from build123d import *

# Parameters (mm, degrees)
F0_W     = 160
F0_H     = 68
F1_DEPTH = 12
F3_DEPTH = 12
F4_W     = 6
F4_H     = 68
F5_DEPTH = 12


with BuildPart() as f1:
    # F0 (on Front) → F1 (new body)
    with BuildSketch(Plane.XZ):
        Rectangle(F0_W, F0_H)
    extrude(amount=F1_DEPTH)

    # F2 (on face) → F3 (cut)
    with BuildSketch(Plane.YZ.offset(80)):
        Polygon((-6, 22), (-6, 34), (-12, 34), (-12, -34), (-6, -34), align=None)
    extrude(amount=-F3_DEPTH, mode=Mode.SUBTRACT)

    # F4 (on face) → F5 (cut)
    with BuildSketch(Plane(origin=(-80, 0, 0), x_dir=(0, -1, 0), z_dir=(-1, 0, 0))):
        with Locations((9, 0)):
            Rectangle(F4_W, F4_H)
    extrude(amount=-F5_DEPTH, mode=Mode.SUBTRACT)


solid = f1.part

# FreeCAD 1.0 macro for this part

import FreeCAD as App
import Part
import Sketcher
from FreeCAD import Vector

doc = App.newDocument("Part")
body = doc.addObject("PartDesign::Body", "Body")

# Sketch on XZ plane
sketch1 = body.newObject("Sketcher::SketchObject", "Sketch")
sketch1.AttachmentSupport = (doc.getObject("XZ_Plane"), [""])
sketch1.MapMode = "FlatFace"
sketch1.addGeometry([
    Part.LineSegment(Vector(-80, 34, 0), Vector(-80, -34, 0)),
    Part.LineSegment(Vector(-80, -34, 0), Vector(80, -34, 0)),
    Part.LineSegment(Vector(80, -34, 0), Vector(80, 34, 0)),
    Part.LineSegment(Vector(80, 34, 0), Vector(-80, 34, 0)),
], False)
sketch1.addConstraint([
    Sketcher.Constraint("Coincident", 0, 2, 1, 1),
    Sketcher.Constraint("Coincident", 1, 2, 2, 1),
    Sketcher.Constraint("Coincident", 2, 2, 3, 1),
    Sketcher.Constraint("Coincident", 3, 2, 0, 1),
    Sketcher.Constraint("Vertical", 0),
    Sketcher.Constraint("Horizontal", 1),
    Sketcher.Constraint("Vertical", 2),
    Sketcher.Constraint("Horizontal", 3),
    Sketcher.Constraint("Symmetric", 0, 2, 2, 2, -1, 1),
    Sketcher.Constraint("DistanceX", 1, 1, 1, 2, 160.0),
    Sketcher.Constraint("DistanceY", 0, 2, 0, 1, 68.0),
])
pad1 = body.newObject("PartDesign::Pad", "Pad")
pad1.Profile = sketch1
pad1.Length = 12

# Sketch on YZ plane
sketch2 = body.newObject("Sketcher::SketchObject", "Sketch001")
sketch2.AttachmentSupport = (doc.getObject("YZ_Plane"), [""])
sketch2.MapMode = "FlatFace"
sketch2.AttachmentOffset = App.Placement(Vector(0, 0, 80), App.Rotation())
sketch2.addGeometry([
    Part.LineSegment(Vector(-6, 34, 0), Vector(-12, 34, 0)),
    Part.LineSegment(Vector(-12, 34, 0), Vector(-12, -34, 0)),
    Part.LineSegment(Vector(-12, -34, 0), Vector(-6, -34, 0)),
    Part.LineSegment(Vector(-6, -34, 0), Vector(-6, 34, 0)),
], False)
sketch2.addConstraint([
    Sketcher.Constraint("Coincident", 0, 2, 1, 1),
    Sketcher.Constraint("Coincident", 1, 2, 2, 1),
    Sketcher.Constraint("Coincident", 2, 2, 3, 1),
    Sketcher.Constraint("Coincident", 3, 2, 0, 1),
    Sketcher.Constraint("Horizontal", 0),
    Sketcher.Constraint("Vertical", 1),
    Sketcher.Constraint("Horizontal", 2),
    Sketcher.Constraint("Vertical", 3),
    Sketcher.Constraint("DistanceX", 0, 2, 0, 1, 6.0),
    Sketcher.Constraint("DistanceY", 1, 2, 1, 1, 68.0),
    Sketcher.Constraint("DistanceX", 0, 2, -1, 1, 12.0),
    Sketcher.Constraint("DistanceY", -1, 1, 0, 2, 34.0),
])
pocket1 = body.newObject("PartDesign::Pocket", "Pocket")
pocket1.Profile = sketch2
pocket1.Length = 12

# Sketch on YZ plane
sketch3 = body.newObject("Sketcher::SketchObject", "Sketch002")
sketch3.AttachmentSupport = (doc.getObject("YZ_Plane"), [""])
sketch3.MapMode = "FlatFace"
sketch3.AttachmentOffset = App.Placement(Vector(0, 0, -80), App.Rotation())
sketch3.addGeometry([
    Part.LineSegment(Vector(-6, 34, 0), Vector(-6, -34, 0)),
    Part.LineSegment(Vector(-6, -34, 0), Vector(-12, -34, 0)),
    Part.LineSegment(Vector(-12, -34, 0), Vector(-12, 34, 0)),
    Part.LineSegment(Vector(-12, 34, 0), Vector(-6, 34, 0)),
], False)
sketch3.addConstraint([
    Sketcher.Constraint("Coincident", 0, 2, 1, 1),
    Sketcher.Constraint("Coincident", 1, 2, 2, 1),
    Sketcher.Constraint("Coincident", 2, 2, 3, 1),
    Sketcher.Constraint("Coincident", 3, 2, 0, 1),
    Sketcher.Constraint("Vertical", 0),
    Sketcher.Constraint("Horizontal", 1),
    Sketcher.Constraint("Vertical", 2),
    Sketcher.Constraint("Horizontal", 3),
    Sketcher.Constraint("DistanceX", 1, 2, 1, 1, 6.0),
    Sketcher.Constraint("DistanceY", 0, 2, 0, 1, 68.0),
    Sketcher.Constraint("DistanceX", 0, 2, -1, 1, 6.0),
    Sketcher.Constraint("DistanceY", 0, 2, -1, 1, 34.0),
])
pocket2 = body.newObject("PartDesign::Pocket", "Pocket001")
pocket2.Profile = sketch3
pocket2.Length = 12
pocket2.Reversed = True

doc.recompute()
